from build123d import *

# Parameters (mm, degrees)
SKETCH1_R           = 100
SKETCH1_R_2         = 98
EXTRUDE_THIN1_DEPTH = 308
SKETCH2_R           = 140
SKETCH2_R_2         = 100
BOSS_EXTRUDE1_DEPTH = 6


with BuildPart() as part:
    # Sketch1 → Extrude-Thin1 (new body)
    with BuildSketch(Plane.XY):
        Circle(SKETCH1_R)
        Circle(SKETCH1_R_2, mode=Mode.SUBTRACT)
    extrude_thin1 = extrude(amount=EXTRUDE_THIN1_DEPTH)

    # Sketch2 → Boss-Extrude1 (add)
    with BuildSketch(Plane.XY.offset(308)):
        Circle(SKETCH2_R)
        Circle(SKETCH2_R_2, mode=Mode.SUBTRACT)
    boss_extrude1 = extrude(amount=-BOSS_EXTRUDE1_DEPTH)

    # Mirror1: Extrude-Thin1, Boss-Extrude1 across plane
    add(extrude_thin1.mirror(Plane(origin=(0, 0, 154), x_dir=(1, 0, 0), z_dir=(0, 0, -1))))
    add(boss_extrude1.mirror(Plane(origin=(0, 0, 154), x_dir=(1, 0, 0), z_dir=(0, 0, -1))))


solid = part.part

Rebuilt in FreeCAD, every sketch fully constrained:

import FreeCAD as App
import Part
import Sketcher

V = App.Vector

doc = App.newDocument("Part")
body = doc.addObject("PartDesign::Body", "Body")

# Sketch on XY plane
sketch1 = body.newObject("Sketcher::SketchObject", "Sketch")
sketch1.AttachmentSupport = (doc.getObject("XY_Plane"), [""])
sketch1.MapMode = "FlatFace"
sketch1.addGeometry(Part.Circle(V(0, 0, 0), V(0, 0, 1), 100), False)
sketch1.addGeometry(Part.Circle(V(0, 0, 0), V(0, 0, 1), 98), False)
sketch1.addConstraint(Sketcher.Constraint("Coincident", 0, 3, -1, 1))
sketch1.addConstraint(Sketcher.Constraint("Coincident", 1, 3, -1, 1))
sketch1.addConstraint(Sketcher.Constraint("Diameter", 0, 200.0))
sketch1.addConstraint(Sketcher.Constraint("Diameter", 1, 196.0))
pad1 = body.newObject("PartDesign::Pad", "Pad")
pad1.Profile = sketch1
pad1.Length = 308

# Sketch on XY plane
sketch2 = body.newObject("Sketcher::SketchObject", "Sketch001")
sketch2.AttachmentSupport = (doc.getObject("XY_Plane"), [""])
sketch2.MapMode = "FlatFace"
sketch2.AttachmentOffset = App.Placement(V(0, 0, 308), App.Rotation())
sketch2.addGeometry(Part.Circle(V(0, 0, 0), V(0, 0, 1), 140), False)
sketch2.addGeometry(Part.Circle(V(0, 0, 0), V(0, 0, 1), 100), False)
sketch2.addConstraint(Sketcher.Constraint("Coincident", 0, 3, -1, 1))
sketch2.addConstraint(Sketcher.Constraint("Coincident", 1, 3, -1, 1))
sketch2.addConstraint(Sketcher.Constraint("Diameter", 0, 280.0))
sketch2.addConstraint(Sketcher.Constraint("Diameter", 1, 200.0))
pad2 = body.newObject("PartDesign::Pad", "Pad001")
pad2.Profile = sketch2
pad2.Length = 6
pad2.Reversed = True
doc.recompute()

datumplane = body.newObject("PartDesign::Plane", "DatumPlane")
datumplane.AttachmentSupport = (doc.getObject("XY_Plane"), [""])
datumplane.MapMode = "FlatFace"
datumplane.AttachmentOffset = App.Placement(V(0, 0, 154), App.Rotation())
mirrored = body.newObject("PartDesign::Mirrored", "Mirrored")
mirrored.Originals = [pad1, pad2]
mirrored.MirrorPlane = (datumplane, [""])
body.Tip = mirrored

doc.recompute()
